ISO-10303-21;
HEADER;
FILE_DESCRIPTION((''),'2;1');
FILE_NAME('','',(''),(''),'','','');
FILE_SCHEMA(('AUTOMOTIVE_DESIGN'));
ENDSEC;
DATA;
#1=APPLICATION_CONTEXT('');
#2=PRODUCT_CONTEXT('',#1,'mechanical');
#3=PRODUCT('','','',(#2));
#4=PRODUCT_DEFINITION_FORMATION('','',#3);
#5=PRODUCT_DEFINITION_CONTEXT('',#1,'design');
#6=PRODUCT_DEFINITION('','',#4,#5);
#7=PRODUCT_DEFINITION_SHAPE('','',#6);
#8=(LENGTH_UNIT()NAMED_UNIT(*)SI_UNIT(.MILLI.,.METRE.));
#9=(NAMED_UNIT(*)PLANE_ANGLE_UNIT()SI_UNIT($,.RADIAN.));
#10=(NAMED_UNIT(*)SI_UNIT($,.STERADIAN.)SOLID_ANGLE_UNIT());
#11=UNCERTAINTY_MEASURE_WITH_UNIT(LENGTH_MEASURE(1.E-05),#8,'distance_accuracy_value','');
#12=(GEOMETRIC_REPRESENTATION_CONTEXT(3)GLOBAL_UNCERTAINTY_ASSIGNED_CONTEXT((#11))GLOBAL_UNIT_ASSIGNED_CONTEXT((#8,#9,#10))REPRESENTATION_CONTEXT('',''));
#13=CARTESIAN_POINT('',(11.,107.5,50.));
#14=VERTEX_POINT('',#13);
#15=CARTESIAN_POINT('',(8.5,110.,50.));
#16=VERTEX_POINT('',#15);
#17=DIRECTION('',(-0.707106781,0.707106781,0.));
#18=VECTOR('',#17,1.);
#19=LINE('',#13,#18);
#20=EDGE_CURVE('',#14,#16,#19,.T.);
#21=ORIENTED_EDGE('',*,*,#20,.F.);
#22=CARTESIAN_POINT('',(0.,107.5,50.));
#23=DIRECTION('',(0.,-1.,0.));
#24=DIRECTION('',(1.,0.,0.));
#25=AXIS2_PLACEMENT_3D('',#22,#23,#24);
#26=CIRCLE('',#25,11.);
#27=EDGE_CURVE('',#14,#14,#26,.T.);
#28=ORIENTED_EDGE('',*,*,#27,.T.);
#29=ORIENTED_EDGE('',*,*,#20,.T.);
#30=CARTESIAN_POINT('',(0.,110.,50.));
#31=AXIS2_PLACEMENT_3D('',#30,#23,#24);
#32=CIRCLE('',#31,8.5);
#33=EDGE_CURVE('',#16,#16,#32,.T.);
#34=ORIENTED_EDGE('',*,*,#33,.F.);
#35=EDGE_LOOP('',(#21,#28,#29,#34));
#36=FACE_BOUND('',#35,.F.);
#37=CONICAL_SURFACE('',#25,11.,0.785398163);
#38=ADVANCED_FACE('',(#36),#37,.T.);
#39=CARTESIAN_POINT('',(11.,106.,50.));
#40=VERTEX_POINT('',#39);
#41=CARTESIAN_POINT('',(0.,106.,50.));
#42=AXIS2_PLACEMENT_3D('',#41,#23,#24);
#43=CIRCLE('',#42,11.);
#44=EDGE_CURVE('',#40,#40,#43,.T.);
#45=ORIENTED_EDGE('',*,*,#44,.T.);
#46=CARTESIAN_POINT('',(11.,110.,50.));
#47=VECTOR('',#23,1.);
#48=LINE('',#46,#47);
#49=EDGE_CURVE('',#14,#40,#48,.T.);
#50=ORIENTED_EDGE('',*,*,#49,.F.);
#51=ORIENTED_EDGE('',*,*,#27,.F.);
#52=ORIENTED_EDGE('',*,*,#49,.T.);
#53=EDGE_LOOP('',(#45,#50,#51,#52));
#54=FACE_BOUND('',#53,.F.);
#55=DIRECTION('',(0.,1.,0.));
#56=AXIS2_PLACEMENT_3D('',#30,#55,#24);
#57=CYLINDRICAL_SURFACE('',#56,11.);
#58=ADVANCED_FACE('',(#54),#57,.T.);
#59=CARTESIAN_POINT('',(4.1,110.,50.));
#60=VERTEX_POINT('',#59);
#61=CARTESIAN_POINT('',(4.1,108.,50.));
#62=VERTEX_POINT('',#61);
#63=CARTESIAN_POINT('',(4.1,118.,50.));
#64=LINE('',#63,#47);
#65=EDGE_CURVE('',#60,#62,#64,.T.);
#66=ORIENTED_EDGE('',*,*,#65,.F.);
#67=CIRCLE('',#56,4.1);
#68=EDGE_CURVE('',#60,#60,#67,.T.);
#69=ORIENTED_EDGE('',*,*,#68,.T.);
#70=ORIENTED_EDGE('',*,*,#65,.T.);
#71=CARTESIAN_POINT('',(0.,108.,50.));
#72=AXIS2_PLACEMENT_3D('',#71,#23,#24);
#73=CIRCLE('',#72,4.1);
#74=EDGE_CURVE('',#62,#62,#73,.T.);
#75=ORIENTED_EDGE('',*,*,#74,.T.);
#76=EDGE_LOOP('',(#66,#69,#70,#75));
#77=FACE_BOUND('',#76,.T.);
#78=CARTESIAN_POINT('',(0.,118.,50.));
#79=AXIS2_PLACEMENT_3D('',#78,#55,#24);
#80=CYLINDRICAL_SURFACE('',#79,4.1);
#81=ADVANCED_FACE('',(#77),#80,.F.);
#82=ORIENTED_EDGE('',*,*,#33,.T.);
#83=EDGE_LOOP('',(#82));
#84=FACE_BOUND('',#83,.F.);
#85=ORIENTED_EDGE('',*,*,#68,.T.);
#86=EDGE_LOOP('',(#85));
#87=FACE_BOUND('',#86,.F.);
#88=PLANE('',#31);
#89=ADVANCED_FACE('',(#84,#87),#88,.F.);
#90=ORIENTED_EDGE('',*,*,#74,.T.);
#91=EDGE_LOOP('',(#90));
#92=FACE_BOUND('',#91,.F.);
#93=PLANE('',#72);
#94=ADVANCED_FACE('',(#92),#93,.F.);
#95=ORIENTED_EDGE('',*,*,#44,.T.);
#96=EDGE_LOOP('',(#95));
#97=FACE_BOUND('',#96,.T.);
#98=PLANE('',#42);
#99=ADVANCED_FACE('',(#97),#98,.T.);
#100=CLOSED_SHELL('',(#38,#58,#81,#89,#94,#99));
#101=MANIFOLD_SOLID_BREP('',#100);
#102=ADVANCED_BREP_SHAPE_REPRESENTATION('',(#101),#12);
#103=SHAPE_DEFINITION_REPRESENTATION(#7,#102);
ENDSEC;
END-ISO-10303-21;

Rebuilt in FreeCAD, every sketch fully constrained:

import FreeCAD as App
import Part
import Sketcher

V = App.Vector
Q = App.Units.Quantity


def edges_at(feature, points):
    """Names of the edges that pass closest to the given points."""
    edges = feature.Shape.Edges
    near = lambda p: min(range(len(edges)), key=lambda i: edges[i].distToShape(Part.Vertex(*p))[0])
    return sorted({f"Edge{near(p) + 1}" for p in points})

doc = App.newDocument("Part")
params = doc.addObject("Spreadsheet::Sheet", "Params")
for row, (alias, value) in enumerate([
    ("sketch1_width", "40 mm"),
    ("sketch1_height", "20 mm"),
    ("pad1_length", "40 mm"),
    ("sketch2_diameter", "8.2 mm"),
    ("pad2_length", "10 mm"),
    ("sketch3_diameter", "22 mm"),
    ("pad3_length", "4 mm"),
    ("chamfer_size", "2.5 mm"),
], start=1):
    params.set(f"A{row}", alias)
    params.set(f"B{row}", "=" + value)
    params.setAlias(f"B{row}", alias)

body = doc.addObject("PartDesign::Body", "Body")

sketch1 = body.newObject("Sketcher::SketchObject", "Sketch")
sketch1.AttachmentSupport = (doc.getObject("XY_Plane"), [""])
sketch1.MapMode = "FlatFace"
sketch1.AttachmentOffset = App.Placement(V(0, 0, 30), App.Rotation())
sketch1.addGeometry([
    Part.LineSegment(V(-20, 130, 0), V(-20, 110, 0)),
    Part.LineSegment(V(-20, 110, 0), V(20, 110, 0)),
    Part.LineSegment(V(20, 110, 0), V(20, 130, 0)),
    Part.LineSegment(V(20, 130, 0), V(-20, 130, 0)),
], False)
sketch1.addConstraint([
    Sketcher.Constraint("Coincident", 0, 2, 1, 1),
    Sketcher.Constraint("Coincident", 1, 2, 2, 1),
    Sketcher.Constraint("Coincident", 2, 2, 3, 1),
    Sketcher.Constraint("Coincident", 3, 2, 0, 1),
    Sketcher.Constraint("Vertical", 0),
    Sketcher.Constraint("Horizontal", 1),
    Sketcher.Constraint("Vertical", 2),
    Sketcher.Constraint("Horizontal", 3),
    Sketcher.Constraint("DistanceX", 1, 1, 1, 2, Q("40 mm")),
    Sketcher.Constraint("DistanceY", 0, 2, 0, 1, Q("20 mm")),
    Sketcher.Constraint("DistanceX", 0, 2, -1, 1, Q("20 mm")),
    Sketcher.Constraint("DistanceY", -1, 1, 0, 2, Q("110 mm")),
])
sketch1.setExpression("Constraints[8]", "Params.sketch1_width")
sketch1.setExpression("Constraints[9]", "Params.sketch1_height")
pad1 = body.newObject("PartDesign::Pad", "Pad")
pad1.Profile = sketch1
pad1.setExpression("Length", "Params.pad1_length")
body2 = doc.addObject("PartDesign::Body", "Body001")

sketch2 = body2.newObject("Sketcher::SketchObject", "Sketch001")
sketch2.AttachmentSupport = (doc.getObject("XZ_Plane001"), [""])
sketch2.MapMode = "FlatFace"
sketch2.AttachmentOffset = App.Placement(V(0, 0, -118), App.Rotation())
sketch2.addGeometry(Part.Circle(V(0, 50, 0), V(0, 0, 1), 4.1), False)
sketch2.addConstraint([
    Sketcher.Constraint("PointOnObject", 0, 3, -2),
    Sketcher.Constraint("Diameter", 0, Q("8.2 mm")),
    Sketcher.Constraint("DistanceY", -1, 1, 0, 3, Q("50 mm")),
])
sketch2.setExpression("Constraints[1]", "Params.sketch2_diameter")
pad2 = body2.newObject("PartDesign::Pad", "Pad001")
pad2.Profile = sketch2
pad2.setExpression("Length", "Params.pad2_length")
body3 = doc.addObject("PartDesign::Body", "Body002")

sketch3 = body3.newObject("Sketcher::SketchObject", "Sketch002")
sketch3.AttachmentSupport = (doc.getObject("XZ_Plane002"), [""])
sketch3.MapMode = "FlatFace"
sketch3.AttachmentOffset = App.Placement(V(0, 0, -110), App.Rotation())
sketch3.addGeometry(Part.Circle(V(0, 50, 0), V(0, 0, 1), 11), False)
sketch3.addConstraint([
    Sketcher.Constraint("PointOnObject", 0, 3, -2),
    Sketcher.Constraint("Diameter", 0, Q("22 mm")),
    Sketcher.Constraint("DistanceY", -1, 1, 0, 3, Q("50 mm")),
])
sketch3.setExpression("Constraints[1]", "Params.sketch3_diameter")
pad3 = body3.newObject("PartDesign::Pad", "Pad002")
pad3.Profile = sketch3
pad3.setExpression("Length", "Params.pad3_length")
doc.recompute()

boolean = body3.newObject("PartDesign::Boolean", "Boolean")
boolean.Type = "Cut"
boolean.addObjects([body2])
doc.recompute()

boolean2 = body3.newObject("PartDesign::Boolean", "Boolean001")
boolean2.Type = "Cut"
boolean2.addObjects([body])
doc.recompute()

chamfer = body3.newObject("PartDesign::Chamfer", "Chamfer")
chamfer.Base = (boolean2, edges_at(boolean2, [(-11, 110, 50)]))
chamfer.setExpression("Size", "Params.chamfer_size")

doc.recompute()
